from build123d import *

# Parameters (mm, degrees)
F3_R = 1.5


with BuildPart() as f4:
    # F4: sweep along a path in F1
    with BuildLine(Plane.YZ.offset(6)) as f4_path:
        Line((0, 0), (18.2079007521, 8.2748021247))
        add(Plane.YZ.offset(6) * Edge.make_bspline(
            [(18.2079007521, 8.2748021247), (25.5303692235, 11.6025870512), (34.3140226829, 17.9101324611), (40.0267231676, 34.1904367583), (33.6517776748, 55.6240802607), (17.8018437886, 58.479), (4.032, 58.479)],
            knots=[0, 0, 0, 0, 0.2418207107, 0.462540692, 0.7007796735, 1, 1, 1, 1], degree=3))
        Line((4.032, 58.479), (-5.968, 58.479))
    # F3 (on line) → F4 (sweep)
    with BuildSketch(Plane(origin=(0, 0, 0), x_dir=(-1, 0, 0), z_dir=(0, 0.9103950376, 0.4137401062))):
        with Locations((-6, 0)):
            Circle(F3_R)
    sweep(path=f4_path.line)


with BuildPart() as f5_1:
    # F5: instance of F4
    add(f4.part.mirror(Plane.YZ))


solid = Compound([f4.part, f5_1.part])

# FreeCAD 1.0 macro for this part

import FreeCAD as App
import Part
import Sketcher

V = App.Vector

doc = App.newDocument("Part")
body = doc.addObject("PartDesign::Body", "Body")

sketch1 = doc.addObject("Sketcher::SketchObject", "Sketch")
body.addObject(sketch1)
sketch1.Placement = App.Placement(V(0, 0, 0), App.Rotation(V(-1, 0, 0), V(0, -0.413740106, 0.910395038), V(0, 0.910395038, 0.413740106), "ZXY"))
sketch1.addGeometry(Part.Circle(V(-6, 0, 0), V(0, 0, 1), 1.5), False)
sketch1.addConstraint(Sketcher.Constraint("PointOnObject", 0, 3, -1))
sketch1.addConstraint(Sketcher.Constraint("Diameter", 0, 3.0))
sketch1.addConstraint(Sketcher.Constraint("DistanceX", 0, 3, -1, 1, 6.0))

sketch2 = doc.addObject("Sketcher::SketchObject", "Sketch001")
body.addObject(sketch2)
sketch2.AttachmentSupport = (doc.YZ_Plane, [""])
sketch2.MapMode = "FlatFace"
sketch2.AttachmentOffset = App.Placement(V(0, 0, 6), App.Rotation())
sketch2.addGeometry(Part.LineSegment(V(0, 0, 0), V(18.207901, 8.274802, 0)), False)
sketch2.addGeometry(Part.BSplineCurve([V(18.207901, 8.274802, 0), V(25.530369, 11.602587, 0), V(34.314023, 17.910132, 0), V(40.026723, 34.190437, 0), V(33.651778, 55.62408, 0), V(17.801844, 58.479, 0), V(4.032, 58.479, 0)], [4, 1, 1, 1, 4], [0, 0.241820711, 0.462540692, 0.700779674, 1], False, 3, [1, 1, 1, 1, 1, 1, 1], False), False)
sketch2.addGeometry(Part.LineSegment(V(4.032, 58.479, 0), V(-5.968, 58.479, 0)), False)
sketch2.addConstraint(Sketcher.Constraint("Block", 1))
sketch2.addConstraint(Sketcher.Constraint("Coincident", 0, 2, 1, 1))
sketch2.addConstraint(Sketcher.Constraint("Coincident", 1, 2, 2, 1))
sketch2.addConstraint(Sketcher.Constraint("Horizontal", 2))
sketch2.addConstraint(Sketcher.Constraint("Coincident", 0, 1, -1, 1))
sketch2.addConstraint(Sketcher.Constraint("DistanceX", 2, 2, 2, 1, 10.0))
doc.recompute()

additivepipe = doc.addObject("PartDesign::AdditivePipe", "AdditivePipe")
body.addObject(additivepipe)
additivepipe.Profile = sketch1
additivepipe.Spine = (sketch2, ["Edge1", "Edge2", "Edge3"])
body2 = doc.addObject("PartDesign::Body", "Body001")
doc.recompute()

mirroring = doc.addObject("Part::Mirroring", "Mirroring")
mirroring.Source = body
mirroring.Base = V(0, 0, 0)
mirroring.Normal = V(1, 0, 0)
body2.BaseFeature = mirroring
doc.recompute()
mirroring.Visibility = False

doc.recompute()
